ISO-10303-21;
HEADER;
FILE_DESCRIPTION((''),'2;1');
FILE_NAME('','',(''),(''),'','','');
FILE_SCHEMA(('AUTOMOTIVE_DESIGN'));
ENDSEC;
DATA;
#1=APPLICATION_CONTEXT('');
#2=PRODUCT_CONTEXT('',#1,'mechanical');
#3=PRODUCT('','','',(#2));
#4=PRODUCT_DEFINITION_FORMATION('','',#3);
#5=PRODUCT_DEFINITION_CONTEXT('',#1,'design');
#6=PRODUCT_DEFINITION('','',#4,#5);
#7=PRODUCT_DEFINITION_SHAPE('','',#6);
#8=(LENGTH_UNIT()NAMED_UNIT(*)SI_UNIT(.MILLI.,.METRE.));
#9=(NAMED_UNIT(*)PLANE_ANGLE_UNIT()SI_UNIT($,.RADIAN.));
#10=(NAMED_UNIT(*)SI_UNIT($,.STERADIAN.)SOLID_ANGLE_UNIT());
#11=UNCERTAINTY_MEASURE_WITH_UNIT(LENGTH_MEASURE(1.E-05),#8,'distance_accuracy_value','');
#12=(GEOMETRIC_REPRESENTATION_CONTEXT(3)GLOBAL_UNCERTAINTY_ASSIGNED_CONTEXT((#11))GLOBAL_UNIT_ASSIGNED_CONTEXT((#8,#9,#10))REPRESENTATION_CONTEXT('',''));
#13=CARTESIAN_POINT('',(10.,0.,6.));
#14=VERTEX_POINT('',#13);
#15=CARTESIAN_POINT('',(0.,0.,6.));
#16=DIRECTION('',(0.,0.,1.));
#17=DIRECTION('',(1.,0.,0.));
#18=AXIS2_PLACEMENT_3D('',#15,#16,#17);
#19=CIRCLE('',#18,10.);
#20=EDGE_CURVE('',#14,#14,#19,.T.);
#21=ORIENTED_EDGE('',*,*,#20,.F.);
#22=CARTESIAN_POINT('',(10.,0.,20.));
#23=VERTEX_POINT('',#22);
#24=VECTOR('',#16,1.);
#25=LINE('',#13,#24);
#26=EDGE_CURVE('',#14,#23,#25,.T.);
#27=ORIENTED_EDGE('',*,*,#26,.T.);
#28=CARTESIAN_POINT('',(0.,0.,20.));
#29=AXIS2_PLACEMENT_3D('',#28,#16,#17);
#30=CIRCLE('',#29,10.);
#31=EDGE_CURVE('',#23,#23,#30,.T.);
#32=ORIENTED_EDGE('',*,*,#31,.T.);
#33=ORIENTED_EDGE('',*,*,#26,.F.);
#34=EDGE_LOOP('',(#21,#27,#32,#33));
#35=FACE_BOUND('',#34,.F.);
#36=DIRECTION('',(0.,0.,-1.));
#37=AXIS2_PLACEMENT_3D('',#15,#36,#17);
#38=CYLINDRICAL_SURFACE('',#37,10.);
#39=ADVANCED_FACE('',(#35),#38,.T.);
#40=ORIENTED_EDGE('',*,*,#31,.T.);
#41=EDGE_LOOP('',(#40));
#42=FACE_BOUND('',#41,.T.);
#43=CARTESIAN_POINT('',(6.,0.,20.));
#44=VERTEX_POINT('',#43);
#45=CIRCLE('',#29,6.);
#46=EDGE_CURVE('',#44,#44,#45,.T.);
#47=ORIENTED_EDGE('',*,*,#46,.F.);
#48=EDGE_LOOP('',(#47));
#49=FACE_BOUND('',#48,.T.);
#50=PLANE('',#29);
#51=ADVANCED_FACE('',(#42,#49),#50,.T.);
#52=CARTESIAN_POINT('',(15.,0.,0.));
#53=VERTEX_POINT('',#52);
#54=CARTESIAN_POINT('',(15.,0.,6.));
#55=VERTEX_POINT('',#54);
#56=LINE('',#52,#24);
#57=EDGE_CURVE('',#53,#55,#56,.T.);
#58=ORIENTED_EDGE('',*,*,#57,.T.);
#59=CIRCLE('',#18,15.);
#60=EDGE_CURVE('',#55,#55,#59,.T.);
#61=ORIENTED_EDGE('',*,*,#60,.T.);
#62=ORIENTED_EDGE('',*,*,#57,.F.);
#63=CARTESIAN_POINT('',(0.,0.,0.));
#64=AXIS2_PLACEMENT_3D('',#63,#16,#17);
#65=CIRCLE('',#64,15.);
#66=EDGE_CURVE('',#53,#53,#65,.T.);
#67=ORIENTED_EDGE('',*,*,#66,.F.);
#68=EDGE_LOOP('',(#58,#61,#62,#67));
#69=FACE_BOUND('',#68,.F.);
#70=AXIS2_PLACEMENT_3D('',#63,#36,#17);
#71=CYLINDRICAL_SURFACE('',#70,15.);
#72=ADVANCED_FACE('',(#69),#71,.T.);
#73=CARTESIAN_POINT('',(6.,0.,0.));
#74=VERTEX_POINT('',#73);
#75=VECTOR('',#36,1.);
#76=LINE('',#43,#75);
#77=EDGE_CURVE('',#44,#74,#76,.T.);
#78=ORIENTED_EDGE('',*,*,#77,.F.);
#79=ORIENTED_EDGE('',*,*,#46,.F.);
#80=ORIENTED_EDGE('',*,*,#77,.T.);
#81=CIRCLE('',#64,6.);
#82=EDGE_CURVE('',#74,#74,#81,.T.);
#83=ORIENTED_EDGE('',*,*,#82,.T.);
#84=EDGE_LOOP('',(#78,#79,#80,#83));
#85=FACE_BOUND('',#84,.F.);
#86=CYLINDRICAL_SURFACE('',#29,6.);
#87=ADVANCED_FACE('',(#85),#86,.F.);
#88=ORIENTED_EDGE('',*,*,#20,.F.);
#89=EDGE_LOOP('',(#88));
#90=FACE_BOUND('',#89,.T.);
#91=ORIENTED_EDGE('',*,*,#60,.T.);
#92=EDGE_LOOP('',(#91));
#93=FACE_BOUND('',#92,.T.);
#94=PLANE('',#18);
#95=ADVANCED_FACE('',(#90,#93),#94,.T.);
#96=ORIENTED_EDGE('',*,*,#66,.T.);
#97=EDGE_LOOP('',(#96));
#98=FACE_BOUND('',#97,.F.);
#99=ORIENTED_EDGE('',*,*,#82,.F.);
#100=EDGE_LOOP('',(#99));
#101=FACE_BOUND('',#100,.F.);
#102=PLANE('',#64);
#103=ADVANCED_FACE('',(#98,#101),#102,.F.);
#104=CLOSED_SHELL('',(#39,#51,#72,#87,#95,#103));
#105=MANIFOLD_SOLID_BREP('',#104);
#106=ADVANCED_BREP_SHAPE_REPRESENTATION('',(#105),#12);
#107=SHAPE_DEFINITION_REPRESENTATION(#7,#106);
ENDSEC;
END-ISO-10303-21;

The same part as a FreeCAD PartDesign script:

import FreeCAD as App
import Part
import Sketcher

doc = App.newDocument("Part")
body = doc.addObject("PartDesign::Body", "Body")

# Sketch on XY plane
sketch1 = doc.addObject("Sketcher::SketchObject", "Sketch")
body.addObject(sketch1)
sketch1.AttachmentSupport = (doc.XY_Plane, [""])
sketch1.MapMode = "FlatFace"
sketch1.addGeometry(Part.Circle(App.Vector(0, 0, 0), App.Vector(0, 0, 1), 15), False)
sketch1.addConstraint(Sketcher.Constraint("Coincident", 0, 3, -1, 1))
sketch1.addConstraint(Sketcher.Constraint("Diameter", 0, 30.0))
pad1 = doc.addObject("PartDesign::Pad", "Pad")
body.addObject(pad1)
pad1.Profile = sketch1
pad1.Length = 6

# Sketch on XY plane
sketch2 = doc.addObject("Sketcher::SketchObject", "Sketch001")
body.addObject(sketch2)
sketch2.AttachmentSupport = (doc.XY_Plane, [""])
sketch2.MapMode = "FlatFace"
sketch2.AttachmentOffset = App.Placement(App.Vector(0, 0, 6), App.Rotation())
sketch2.addGeometry(Part.Circle(App.Vector(0, 0, 0), App.Vector(0, 0, 1), 10), False)
sketch2.addConstraint(Sketcher.Constraint("Coincident", 0, 3, -1, 1))
sketch2.addConstraint(Sketcher.Constraint("Diameter", 0, 20.0))
pad2 = doc.addObject("PartDesign::Pad", "Pad001")
body.addObject(pad2)
pad2.Profile = sketch2
pad2.Length = 14

# Sketch on XY plane
sketch3 = doc.addObject("Sketcher::SketchObject", "Sketch002")
body.addObject(sketch3)
sketch3.AttachmentSupport = (doc.XY_Plane, [""])
sketch3.MapMode = "FlatFace"
sketch3.AttachmentOffset = App.Placement(App.Vector(0, 0, 20), App.Rotation())
sketch3.addGeometry(Part.Circle(App.Vector(0, 0, 0), App.Vector(0, 0, 1), 6), False)
sketch3.addConstraint(Sketcher.Constraint("Coincident", 0, 3, -1, 1))
sketch3.addConstraint(Sketcher.Constraint("Diameter", 0, 12.0))
pocket1 = doc.addObject("PartDesign::Pocket", "Pocket")
body.addObject(pocket1)
pocket1.Profile = sketch3
pocket1.Length = 20

doc.recompute()
